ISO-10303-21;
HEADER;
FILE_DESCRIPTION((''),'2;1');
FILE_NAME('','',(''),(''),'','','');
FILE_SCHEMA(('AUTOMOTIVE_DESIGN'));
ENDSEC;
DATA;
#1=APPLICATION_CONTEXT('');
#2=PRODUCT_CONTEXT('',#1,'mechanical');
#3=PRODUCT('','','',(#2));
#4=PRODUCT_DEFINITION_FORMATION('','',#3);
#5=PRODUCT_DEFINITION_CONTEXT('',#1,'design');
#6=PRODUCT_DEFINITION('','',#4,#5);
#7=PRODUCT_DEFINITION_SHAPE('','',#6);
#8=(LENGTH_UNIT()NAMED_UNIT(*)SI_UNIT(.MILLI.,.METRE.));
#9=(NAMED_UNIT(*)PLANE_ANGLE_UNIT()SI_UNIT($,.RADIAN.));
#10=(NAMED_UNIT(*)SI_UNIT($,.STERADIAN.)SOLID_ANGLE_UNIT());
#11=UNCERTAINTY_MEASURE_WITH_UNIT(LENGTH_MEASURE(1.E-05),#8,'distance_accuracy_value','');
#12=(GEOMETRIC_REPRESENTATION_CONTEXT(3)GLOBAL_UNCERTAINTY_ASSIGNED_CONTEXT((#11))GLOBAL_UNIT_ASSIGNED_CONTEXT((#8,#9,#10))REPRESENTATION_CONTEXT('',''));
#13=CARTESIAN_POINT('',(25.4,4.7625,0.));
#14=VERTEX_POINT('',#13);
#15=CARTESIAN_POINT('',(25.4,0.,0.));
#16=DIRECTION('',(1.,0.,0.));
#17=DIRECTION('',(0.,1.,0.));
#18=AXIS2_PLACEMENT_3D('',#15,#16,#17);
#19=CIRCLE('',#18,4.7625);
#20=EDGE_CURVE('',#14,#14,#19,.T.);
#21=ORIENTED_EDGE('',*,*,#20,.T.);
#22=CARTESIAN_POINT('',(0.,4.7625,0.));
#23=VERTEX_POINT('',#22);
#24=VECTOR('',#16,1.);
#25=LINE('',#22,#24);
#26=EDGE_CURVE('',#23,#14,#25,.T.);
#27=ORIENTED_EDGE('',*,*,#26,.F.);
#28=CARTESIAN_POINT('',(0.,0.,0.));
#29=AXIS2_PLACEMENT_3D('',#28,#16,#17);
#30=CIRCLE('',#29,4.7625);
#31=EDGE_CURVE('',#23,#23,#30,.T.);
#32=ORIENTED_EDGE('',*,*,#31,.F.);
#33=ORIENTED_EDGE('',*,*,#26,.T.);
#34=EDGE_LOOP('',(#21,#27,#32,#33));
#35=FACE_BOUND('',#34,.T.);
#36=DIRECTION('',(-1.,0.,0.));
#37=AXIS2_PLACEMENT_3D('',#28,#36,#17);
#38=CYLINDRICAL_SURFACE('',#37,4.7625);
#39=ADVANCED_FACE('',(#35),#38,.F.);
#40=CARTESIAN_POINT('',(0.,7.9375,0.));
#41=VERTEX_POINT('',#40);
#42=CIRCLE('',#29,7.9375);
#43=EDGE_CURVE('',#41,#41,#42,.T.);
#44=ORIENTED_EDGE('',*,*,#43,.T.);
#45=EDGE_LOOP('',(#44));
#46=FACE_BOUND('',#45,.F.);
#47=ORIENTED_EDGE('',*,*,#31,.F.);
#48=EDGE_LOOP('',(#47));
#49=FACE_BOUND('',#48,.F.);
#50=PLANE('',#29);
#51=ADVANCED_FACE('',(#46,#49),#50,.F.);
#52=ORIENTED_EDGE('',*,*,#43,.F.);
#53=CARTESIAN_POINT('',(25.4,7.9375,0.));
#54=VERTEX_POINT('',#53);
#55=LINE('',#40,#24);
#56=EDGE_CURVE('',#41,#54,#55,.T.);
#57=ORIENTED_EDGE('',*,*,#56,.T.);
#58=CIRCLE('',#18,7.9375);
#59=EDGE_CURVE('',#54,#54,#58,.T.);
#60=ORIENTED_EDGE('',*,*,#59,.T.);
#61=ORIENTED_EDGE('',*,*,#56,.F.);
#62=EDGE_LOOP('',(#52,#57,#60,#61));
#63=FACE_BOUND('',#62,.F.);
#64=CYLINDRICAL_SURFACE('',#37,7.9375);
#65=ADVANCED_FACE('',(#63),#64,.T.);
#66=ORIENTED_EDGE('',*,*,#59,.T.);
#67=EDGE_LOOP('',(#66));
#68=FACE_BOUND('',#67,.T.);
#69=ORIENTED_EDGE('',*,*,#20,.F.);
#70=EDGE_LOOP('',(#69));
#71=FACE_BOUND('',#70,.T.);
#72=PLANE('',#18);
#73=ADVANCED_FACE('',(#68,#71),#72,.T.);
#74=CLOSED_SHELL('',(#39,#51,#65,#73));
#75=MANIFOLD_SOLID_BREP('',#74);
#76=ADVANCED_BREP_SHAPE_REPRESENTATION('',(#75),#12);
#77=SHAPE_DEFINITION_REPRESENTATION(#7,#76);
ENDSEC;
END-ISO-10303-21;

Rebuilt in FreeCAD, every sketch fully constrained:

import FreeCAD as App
import Part
import Sketcher

V = App.Vector
Q = App.Units.Quantity

doc = App.newDocument("Part")
body = doc.addObject("PartDesign::Body", "Body")

sketch1 = body.newObject("Sketcher::SketchObject", "Sketch")
sketch1.AttachmentSupport = (doc.getObject("YZ_Plane"), [""])
sketch1.MapMode = "FlatFace"
sketch1.addGeometry([
    Part.Circle(V(0, 0, 0), V(0, 0, 1), 7.9),
    Part.Circle(V(0, 0, 0), V(0, 0, 1), 4.8),
], False)
sketch1.addConstraint([
    Sketcher.Constraint("Coincident", 0, 3, -1, 1),
    Sketcher.Constraint("Coincident", 1, 3, -1, 1),
    Sketcher.Constraint("Diameter", 0, Q("0.625 in")),
    Sketcher.Constraint("Diameter", 1, Q("0.375 in")),
])
pad1 = body.newObject("PartDesign::Pad", "Pad")
pad1.Profile = sketch1
pad1.Length = Q("1 in")

doc.recompute()
